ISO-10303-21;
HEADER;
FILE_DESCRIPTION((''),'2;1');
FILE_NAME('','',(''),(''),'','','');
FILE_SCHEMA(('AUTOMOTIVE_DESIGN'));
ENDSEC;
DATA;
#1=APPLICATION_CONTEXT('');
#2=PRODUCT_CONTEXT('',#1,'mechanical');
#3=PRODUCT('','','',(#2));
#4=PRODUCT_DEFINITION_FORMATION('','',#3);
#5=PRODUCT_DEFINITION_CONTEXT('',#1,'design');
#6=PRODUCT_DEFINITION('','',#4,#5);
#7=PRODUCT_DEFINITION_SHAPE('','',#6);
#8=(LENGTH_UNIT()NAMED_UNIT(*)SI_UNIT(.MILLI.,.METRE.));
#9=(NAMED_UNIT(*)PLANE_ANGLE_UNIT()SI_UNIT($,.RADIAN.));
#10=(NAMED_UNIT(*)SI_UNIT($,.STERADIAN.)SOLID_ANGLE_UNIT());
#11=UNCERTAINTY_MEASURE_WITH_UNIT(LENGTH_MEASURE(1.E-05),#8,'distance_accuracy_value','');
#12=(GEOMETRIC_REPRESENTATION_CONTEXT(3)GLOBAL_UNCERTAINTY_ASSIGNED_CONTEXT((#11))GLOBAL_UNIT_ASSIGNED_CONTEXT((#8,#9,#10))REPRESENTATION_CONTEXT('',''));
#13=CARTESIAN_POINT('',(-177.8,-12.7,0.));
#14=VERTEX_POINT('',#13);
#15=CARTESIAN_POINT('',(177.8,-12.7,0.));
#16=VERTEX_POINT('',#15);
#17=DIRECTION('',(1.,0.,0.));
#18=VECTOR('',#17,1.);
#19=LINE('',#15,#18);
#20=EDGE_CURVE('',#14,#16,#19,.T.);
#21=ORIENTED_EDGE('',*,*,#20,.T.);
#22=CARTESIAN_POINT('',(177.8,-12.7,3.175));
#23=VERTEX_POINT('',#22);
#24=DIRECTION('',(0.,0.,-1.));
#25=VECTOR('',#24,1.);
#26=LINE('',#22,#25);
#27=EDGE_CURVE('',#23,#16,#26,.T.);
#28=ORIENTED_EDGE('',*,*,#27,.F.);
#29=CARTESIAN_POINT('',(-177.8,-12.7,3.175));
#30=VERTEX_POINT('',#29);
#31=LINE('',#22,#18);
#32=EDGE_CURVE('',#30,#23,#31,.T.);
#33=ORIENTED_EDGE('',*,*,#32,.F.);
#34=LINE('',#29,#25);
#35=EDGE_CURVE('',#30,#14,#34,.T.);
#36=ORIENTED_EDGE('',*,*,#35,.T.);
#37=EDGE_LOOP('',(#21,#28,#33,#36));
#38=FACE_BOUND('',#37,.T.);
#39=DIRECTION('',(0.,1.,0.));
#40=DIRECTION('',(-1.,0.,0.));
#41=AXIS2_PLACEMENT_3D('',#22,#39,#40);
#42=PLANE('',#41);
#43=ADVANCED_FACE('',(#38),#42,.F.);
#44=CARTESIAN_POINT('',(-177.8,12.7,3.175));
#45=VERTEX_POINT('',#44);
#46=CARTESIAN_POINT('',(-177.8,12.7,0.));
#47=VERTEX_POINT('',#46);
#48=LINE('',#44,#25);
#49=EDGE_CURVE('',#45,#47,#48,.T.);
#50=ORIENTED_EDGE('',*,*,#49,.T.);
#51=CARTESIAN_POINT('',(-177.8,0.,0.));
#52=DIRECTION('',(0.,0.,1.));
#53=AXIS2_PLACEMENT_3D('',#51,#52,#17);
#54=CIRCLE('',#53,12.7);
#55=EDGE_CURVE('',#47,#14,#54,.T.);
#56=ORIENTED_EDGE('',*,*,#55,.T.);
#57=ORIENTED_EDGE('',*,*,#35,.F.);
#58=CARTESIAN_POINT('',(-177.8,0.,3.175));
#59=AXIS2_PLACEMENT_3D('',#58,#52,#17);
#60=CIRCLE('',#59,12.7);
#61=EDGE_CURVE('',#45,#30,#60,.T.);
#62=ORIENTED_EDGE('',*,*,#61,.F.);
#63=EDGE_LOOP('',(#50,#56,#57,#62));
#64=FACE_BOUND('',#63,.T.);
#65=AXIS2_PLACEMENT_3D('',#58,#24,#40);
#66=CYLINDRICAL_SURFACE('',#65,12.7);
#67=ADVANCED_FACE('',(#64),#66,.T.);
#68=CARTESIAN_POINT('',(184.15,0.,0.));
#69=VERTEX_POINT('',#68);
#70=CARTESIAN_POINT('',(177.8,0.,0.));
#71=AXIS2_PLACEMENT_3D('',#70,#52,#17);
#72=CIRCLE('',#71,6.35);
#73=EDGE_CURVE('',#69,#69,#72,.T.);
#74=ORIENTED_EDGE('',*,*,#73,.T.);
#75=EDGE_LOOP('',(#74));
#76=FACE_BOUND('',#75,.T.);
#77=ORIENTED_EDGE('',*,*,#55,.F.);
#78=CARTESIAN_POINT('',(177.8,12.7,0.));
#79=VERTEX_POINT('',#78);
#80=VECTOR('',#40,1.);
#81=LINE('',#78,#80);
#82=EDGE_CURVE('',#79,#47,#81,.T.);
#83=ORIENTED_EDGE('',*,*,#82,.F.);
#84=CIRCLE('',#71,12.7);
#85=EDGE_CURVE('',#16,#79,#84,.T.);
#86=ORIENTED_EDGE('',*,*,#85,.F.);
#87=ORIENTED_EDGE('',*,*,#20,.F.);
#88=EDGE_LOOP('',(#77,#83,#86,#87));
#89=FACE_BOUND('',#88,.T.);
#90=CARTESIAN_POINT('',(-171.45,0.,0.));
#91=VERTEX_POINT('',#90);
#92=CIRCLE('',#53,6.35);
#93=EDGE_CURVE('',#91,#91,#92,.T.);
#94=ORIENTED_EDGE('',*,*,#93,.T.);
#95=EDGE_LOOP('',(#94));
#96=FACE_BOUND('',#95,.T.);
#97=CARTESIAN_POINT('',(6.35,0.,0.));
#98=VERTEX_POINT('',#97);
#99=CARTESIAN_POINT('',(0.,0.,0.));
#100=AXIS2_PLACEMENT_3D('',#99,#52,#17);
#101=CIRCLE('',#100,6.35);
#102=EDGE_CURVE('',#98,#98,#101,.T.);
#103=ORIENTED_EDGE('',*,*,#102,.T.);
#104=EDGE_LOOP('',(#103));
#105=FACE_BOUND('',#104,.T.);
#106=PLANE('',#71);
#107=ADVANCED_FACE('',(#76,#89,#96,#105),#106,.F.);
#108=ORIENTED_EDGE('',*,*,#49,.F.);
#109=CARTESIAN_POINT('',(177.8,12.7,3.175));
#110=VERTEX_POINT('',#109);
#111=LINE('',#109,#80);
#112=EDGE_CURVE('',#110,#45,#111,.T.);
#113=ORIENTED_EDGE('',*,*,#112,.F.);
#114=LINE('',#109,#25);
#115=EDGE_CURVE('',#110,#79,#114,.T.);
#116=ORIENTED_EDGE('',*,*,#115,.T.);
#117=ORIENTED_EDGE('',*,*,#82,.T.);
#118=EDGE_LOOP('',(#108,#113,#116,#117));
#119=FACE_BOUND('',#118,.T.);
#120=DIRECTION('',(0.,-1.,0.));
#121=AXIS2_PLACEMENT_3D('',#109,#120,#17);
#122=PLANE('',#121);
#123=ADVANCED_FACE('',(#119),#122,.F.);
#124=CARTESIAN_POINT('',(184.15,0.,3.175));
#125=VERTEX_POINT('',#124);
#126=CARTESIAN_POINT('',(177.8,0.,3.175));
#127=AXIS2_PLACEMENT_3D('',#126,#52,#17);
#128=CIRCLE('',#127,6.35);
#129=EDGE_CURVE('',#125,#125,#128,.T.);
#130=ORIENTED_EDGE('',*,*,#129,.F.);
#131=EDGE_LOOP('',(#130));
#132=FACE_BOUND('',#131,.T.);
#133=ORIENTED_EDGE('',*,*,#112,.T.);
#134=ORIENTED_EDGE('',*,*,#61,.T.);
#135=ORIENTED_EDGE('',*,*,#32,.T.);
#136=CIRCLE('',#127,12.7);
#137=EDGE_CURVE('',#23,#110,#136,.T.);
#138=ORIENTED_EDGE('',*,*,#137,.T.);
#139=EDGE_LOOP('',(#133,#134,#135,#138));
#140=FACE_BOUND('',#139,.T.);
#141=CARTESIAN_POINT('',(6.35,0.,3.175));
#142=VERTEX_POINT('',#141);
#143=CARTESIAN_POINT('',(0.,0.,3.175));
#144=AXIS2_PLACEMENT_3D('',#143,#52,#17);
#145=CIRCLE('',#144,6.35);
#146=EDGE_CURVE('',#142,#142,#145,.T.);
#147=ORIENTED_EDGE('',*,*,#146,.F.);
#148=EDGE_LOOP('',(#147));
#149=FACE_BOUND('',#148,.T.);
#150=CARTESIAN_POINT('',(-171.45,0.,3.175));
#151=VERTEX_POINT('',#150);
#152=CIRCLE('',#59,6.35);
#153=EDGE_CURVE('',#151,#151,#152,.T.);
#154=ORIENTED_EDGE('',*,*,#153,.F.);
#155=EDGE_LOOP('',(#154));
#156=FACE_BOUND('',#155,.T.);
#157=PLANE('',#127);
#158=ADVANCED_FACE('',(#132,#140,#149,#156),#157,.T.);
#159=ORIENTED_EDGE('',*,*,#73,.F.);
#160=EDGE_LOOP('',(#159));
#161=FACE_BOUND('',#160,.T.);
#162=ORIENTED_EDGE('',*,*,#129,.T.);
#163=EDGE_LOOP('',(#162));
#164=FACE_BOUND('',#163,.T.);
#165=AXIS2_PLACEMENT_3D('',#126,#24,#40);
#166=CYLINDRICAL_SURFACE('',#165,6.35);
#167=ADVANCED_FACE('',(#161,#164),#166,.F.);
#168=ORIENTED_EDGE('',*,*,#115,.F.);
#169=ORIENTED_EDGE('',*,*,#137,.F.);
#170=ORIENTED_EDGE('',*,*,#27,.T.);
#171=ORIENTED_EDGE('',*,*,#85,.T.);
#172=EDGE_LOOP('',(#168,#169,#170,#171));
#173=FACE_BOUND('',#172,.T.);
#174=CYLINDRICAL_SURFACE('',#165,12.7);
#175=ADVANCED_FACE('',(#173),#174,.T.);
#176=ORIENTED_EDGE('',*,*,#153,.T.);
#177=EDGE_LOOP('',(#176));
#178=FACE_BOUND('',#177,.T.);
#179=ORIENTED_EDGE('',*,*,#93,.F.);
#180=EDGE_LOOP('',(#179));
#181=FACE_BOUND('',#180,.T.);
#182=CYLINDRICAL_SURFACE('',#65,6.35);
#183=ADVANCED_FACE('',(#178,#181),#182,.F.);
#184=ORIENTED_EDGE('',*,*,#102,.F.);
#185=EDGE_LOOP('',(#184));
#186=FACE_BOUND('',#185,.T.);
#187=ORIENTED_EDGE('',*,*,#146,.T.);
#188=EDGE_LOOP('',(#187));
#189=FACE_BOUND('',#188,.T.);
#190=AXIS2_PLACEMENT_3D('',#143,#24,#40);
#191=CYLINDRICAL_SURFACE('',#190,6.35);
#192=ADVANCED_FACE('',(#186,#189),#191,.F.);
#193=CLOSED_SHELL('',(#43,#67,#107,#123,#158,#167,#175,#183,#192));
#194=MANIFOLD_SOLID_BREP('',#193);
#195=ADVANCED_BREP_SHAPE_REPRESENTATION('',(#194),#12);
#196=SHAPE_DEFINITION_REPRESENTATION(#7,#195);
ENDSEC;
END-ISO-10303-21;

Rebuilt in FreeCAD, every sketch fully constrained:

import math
import FreeCAD as App
import Part
import Sketcher
from FreeCAD import Vector
Q = App.Units.Quantity

doc = App.newDocument("Part")
body = doc.addObject("PartDesign::Body", "Body")

# Sketch on XY plane
sketch1 = doc.addObject("Sketcher::SketchObject", "Sketch")
body.addObject(sketch1)
sketch1.AttachmentSupport = (doc.XY_Plane, [""])
sketch1.MapMode = "FlatFace"
sketch1.addGeometry([
    Part.LineSegment(Vector(-178, -13, 0), Vector(178, -13, 0)),  # 0
    Part.ArcOfCircle(Part.Circle(Vector(178, 0, 0), Vector(0, 0, 1), 13), math.radians(-90), math.radians(90)),  # 1
    Part.LineSegment(Vector(178, 13, 0), Vector(-178, 13, 0)),  # 2
    Part.ArcOfCircle(Part.Circle(Vector(-178, 0, 0), Vector(0, 0, 1), 13), math.radians(90), math.radians(270)),  # 3
    Part.Circle(Vector(178, 0, 0), Vector(0, 0, 1), 6),  # 4
    Part.Circle(Vector(0, 0, 0), Vector(0, 0, 1), 6),  # 5
    Part.Circle(Vector(-178, 0, 0), Vector(0, 0, 1), 6),  # 6
], False)
sketch1.addConstraint([
    Sketcher.Constraint("Tangent", 0, 2, 1, 1),
    Sketcher.Constraint("Tangent", 1, 2, 2, 1),
    Sketcher.Constraint("Tangent", 2, 2, 3, 1),
    Sketcher.Constraint("Tangent", 3, 2, 0, 1),
    Sketcher.Constraint("Horizontal", 0),
    Sketcher.Constraint("Horizontal", 2),
    Sketcher.Constraint("Coincident", 5, 3, -1, 1),
    Sketcher.Constraint("Coincident", 4, 3, 1, 3),
    Sketcher.Constraint("Coincident", 6, 3, 3, 3),
    Sketcher.Constraint("Equal", 4, 5),
    Sketcher.Constraint("Equal", 5, 6),
    Sketcher.Constraint("Symmetric", 1, 3, 3, 3, -1, 1),
    Sketcher.Constraint("Diameter", 4, Q("0.5 in")),
    Sketcher.Constraint("Radius", 1, Q("0.5 in")),
    Sketcher.Constraint("DistanceX", 0, 1, 0, 2, Q("14 in")),
])
pad1 = doc.addObject("PartDesign::Pad", "Pad")
body.addObject(pad1)
pad1.Profile = sketch1
pad1.Length = Q("0.125 in")

doc.recompute()
